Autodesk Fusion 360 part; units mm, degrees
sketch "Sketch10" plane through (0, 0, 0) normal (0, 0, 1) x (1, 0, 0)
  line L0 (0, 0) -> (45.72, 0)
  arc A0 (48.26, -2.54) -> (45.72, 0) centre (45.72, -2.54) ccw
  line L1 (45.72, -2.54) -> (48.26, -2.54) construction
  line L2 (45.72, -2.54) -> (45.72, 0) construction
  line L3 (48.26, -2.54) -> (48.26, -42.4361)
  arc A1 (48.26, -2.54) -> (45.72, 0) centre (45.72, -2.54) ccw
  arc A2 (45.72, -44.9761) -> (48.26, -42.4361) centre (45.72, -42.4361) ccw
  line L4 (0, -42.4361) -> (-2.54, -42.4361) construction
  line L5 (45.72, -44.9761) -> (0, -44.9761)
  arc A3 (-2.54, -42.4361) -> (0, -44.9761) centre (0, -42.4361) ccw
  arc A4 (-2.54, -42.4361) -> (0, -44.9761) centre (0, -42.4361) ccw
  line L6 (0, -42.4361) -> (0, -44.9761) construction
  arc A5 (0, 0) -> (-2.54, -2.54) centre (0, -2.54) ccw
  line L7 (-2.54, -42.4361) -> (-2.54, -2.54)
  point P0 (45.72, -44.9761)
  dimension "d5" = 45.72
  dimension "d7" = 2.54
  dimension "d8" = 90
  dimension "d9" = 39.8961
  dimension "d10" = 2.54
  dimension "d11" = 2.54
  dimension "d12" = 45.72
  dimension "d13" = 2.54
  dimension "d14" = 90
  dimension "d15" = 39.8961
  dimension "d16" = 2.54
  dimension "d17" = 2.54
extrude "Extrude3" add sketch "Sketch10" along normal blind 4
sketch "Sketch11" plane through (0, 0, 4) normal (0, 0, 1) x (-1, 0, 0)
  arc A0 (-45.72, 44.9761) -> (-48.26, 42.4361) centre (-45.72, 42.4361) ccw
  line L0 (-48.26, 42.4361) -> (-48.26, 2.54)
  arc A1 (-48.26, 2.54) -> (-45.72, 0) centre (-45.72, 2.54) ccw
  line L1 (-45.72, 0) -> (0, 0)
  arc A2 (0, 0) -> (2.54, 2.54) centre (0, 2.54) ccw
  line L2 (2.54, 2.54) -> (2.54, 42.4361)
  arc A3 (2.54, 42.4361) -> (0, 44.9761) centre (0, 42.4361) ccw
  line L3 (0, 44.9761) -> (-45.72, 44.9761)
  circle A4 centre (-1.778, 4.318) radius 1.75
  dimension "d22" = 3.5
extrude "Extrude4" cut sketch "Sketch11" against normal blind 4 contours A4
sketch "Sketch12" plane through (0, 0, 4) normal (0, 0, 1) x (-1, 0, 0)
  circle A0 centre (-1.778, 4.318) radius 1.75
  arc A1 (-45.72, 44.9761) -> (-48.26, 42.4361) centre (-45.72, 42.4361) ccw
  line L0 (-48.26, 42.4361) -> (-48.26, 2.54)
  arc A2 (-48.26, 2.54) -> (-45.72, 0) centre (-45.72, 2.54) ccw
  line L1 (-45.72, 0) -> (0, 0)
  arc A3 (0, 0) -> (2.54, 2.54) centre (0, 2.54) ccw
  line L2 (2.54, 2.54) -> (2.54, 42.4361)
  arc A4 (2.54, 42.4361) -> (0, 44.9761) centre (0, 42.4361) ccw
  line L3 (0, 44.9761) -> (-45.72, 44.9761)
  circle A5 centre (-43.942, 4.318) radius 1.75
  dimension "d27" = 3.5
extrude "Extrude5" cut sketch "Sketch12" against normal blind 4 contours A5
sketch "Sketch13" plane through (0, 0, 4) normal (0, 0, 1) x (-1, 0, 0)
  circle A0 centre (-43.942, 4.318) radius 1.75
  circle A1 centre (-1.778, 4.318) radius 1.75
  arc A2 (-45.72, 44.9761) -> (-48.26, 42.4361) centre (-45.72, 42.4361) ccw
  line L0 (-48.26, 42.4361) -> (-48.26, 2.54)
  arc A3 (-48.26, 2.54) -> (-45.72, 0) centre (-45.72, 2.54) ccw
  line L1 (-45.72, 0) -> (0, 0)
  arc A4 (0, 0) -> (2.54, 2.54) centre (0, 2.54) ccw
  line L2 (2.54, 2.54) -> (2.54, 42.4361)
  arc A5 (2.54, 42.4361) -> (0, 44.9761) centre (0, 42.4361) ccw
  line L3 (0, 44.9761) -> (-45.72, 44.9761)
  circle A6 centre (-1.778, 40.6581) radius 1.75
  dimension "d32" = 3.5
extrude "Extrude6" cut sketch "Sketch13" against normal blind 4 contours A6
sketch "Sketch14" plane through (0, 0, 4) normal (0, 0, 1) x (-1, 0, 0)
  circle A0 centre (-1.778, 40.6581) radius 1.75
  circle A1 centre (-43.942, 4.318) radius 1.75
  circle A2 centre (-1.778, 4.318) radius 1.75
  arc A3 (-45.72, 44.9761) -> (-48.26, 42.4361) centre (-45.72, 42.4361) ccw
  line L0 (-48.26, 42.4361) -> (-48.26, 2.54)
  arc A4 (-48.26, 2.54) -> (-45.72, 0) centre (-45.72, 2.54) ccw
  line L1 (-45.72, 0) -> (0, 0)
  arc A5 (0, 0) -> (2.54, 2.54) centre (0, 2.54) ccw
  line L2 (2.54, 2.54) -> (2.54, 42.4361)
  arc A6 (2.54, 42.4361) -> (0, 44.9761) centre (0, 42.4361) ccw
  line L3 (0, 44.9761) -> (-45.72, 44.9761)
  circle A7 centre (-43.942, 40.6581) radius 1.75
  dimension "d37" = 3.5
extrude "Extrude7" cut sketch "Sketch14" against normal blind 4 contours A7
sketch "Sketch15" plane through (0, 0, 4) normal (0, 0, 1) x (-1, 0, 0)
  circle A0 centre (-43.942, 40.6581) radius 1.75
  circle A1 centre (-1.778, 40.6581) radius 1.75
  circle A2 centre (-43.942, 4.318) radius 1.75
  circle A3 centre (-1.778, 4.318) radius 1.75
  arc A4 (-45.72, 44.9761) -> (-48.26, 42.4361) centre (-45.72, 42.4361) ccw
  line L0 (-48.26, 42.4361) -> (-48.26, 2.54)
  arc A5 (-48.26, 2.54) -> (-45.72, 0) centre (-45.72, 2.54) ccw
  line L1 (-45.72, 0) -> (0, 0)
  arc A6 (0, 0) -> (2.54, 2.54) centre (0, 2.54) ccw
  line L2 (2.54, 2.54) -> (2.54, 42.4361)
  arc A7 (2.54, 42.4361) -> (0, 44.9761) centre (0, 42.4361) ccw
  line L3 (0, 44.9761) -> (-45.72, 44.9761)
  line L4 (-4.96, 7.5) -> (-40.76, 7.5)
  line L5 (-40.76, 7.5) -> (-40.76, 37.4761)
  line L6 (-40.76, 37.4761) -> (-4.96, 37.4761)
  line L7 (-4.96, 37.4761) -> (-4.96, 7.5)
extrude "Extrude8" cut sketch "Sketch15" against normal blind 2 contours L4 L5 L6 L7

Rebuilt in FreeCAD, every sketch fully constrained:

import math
import FreeCAD as App
import Part
import Sketcher
Q = App.Units.Quantity

doc = App.newDocument("Part")
body = doc.addObject("PartDesign::Body", "Body")

# Sketch on XY plane
sketch1 = body.newObject("Sketcher::SketchObject", "Sketch")
sketch1.AttachmentSupport = (doc.getObject("XY_Plane"), [""])
sketch1.MapMode = "FlatFace"
sketch1.addGeometry(Part.LineSegment(App.Vector(45.7, 0, 0), App.Vector(0, 0, 0)), False)
sketch1.addGeometry(Part.ArcOfCircle(Part.Circle(App.Vector(0, -2.5, 0), App.Vector(0, 0, 1), 2.5), math.radians(90), math.radians(180)), False)
sketch1.addGeometry(Part.LineSegment(App.Vector(-2.5, -2.5, 0), App.Vector(-2.5, -42.4, 0)), False)
sketch1.addGeometry(Part.ArcOfCircle(Part.Circle(App.Vector(0, -42.4, 0), App.Vector(0, 0, 1), 2.5), math.radians(180), math.radians(270)), False)
sketch1.addGeometry(Part.LineSegment(App.Vector(0, -45, 0), App.Vector(45.7, -45, 0)), False)
sketch1.addGeometry(Part.ArcOfCircle(Part.Circle(App.Vector(45.7, -42.4, 0), App.Vector(0, 0, 1), 2.5), math.radians(-90), math.radians(0)), False)
sketch1.addGeometry(Part.LineSegment(App.Vector(48.3, -42.4, 0), App.Vector(48.3, -2.5, 0)), False)
sketch1.addGeometry(Part.ArcOfCircle(Part.Circle(App.Vector(45.7, -2.5, 0), App.Vector(0, 0, 1), 2.5), math.radians(0), math.radians(90)), False)
sketch1.addConstraint(Sketcher.Constraint("Tangent", 0, 2, 1, 1))
sketch1.addConstraint(Sketcher.Constraint("Tangent", 1, 2, 2, 1))
sketch1.addConstraint(Sketcher.Constraint("Tangent", 2, 2, 3, 1))
sketch1.addConstraint(Sketcher.Constraint("Tangent", 3, 2, 4, 1))
sketch1.addConstraint(Sketcher.Constraint("Tangent", 4, 2, 5, 1))
sketch1.addConstraint(Sketcher.Constraint("Tangent", 5, 2, 6, 1))
sketch1.addConstraint(Sketcher.Constraint("Tangent", 6, 2, 7, 1))
sketch1.addConstraint(Sketcher.Constraint("Tangent", 7, 2, 0, 1))
sketch1.addConstraint(Sketcher.Constraint("Horizontal", 0))
sketch1.addConstraint(Sketcher.Constraint("Vertical", 2))
sketch1.addConstraint(Sketcher.Constraint("Horizontal", 4))
sketch1.addConstraint(Sketcher.Constraint("Vertical", 6))
sketch1.addConstraint(Sketcher.Constraint("Coincident", 0, 2, -1, 1))
sketch1.addConstraint(Sketcher.Constraint("Equal", 1, 3))
sketch1.addConstraint(Sketcher.Constraint("Equal", 3, 5))
sketch1.addConstraint(Sketcher.Constraint("Equal", 5, 7))
sketch1.addConstraint(Sketcher.Constraint("Radius", 1, Q("2.54 mm")))
sketch1.addConstraint(Sketcher.Constraint("DistanceX", 0, 2, 0, 1, Q("45.72 mm")))
sketch1.addConstraint(Sketcher.Constraint("DistanceY", 2, 2, 2, 1, Q("39.896 mm")))
pad1 = body.newObject("PartDesign::Pad", "Pad")
pad1.Profile = sketch1
pad1.Length = 4

# Sketch on XY plane
sketch2 = body.newObject("Sketcher::SketchObject", "Sketch001")
sketch2.AttachmentSupport = (doc.getObject("XY_Plane"), [""])
sketch2.MapMode = "FlatFace"
sketch2.AttachmentOffset = App.Placement(App.Vector(0, 0, 4), App.Rotation())
sketch2.addGeometry(Part.Circle(App.Vector(1.8, -4.3, 0), App.Vector(0, 0, 1), 1.8), False)
sketch2.addConstraint(Sketcher.Constraint("Diameter", 0, Q("3.5 mm")))
sketch2.addConstraint(Sketcher.Constraint("DistanceX", -1, 1, 0, 3, Q("1.778 mm")))
sketch2.addConstraint(Sketcher.Constraint("DistanceY", 0, 3, -1, 1, Q("4.318 mm")))
pocket1 = body.newObject("PartDesign::Pocket", "Pocket")
pocket1.Profile = sketch2
pocket1.Length = 4

# Sketch on XY plane
sketch3 = body.newObject("Sketcher::SketchObject", "Sketch002")
sketch3.AttachmentSupport = (doc.getObject("XY_Plane"), [""])
sketch3.MapMode = "FlatFace"
sketch3.AttachmentOffset = App.Placement(App.Vector(0, 0, 4), App.Rotation())
sketch3.addGeometry(Part.Circle(App.Vector(43.9, -4.3, 0), App.Vector(0, 0, 1), 1.8), False)
sketch3.addConstraint(Sketcher.Constraint("Diameter", 0, Q("3.5 mm")))
sketch3.addConstraint(Sketcher.Constraint("DistanceX", -1, 1, 0, 3, Q("43.942 mm")))
sketch3.addConstraint(Sketcher.Constraint("DistanceY", 0, 3, -1, 1, Q("4.318 mm")))
pocket2 = body.newObject("PartDesign::Pocket", "Pocket001")
pocket2.Profile = sketch3
pocket2.Length = 4

# Sketch on XY plane
sketch4 = body.newObject("Sketcher::SketchObject", "Sketch003")
sketch4.AttachmentSupport = (doc.getObject("XY_Plane"), [""])
sketch4.MapMode = "FlatFace"
sketch4.AttachmentOffset = App.Placement(App.Vector(0, 0, 4), App.Rotation())
sketch4.addGeometry(Part.Circle(App.Vector(1.8, -40.7, 0), App.Vector(0, 0, 1), 1.8), False)
sketch4.addConstraint(Sketcher.Constraint("Diameter", 0, Q("3.5 mm")))
sketch4.addConstraint(Sketcher.Constraint("DistanceX", -1, 1, 0, 3, Q("1.778 mm")))
sketch4.addConstraint(Sketcher.Constraint("DistanceY", 0, 3, -1, 1, Q("40.658 mm")))
pocket3 = body.newObject("PartDesign::Pocket", "Pocket002")
pocket3.Profile = sketch4
pocket3.Length = 4

# Sketch on XY plane
sketch5 = body.newObject("Sketcher::SketchObject", "Sketch004")
sketch5.AttachmentSupport = (doc.getObject("XY_Plane"), [""])
sketch5.MapMode = "FlatFace"
sketch5.AttachmentOffset = App.Placement(App.Vector(0, 0, 4), App.Rotation())
sketch5.addGeometry(Part.Circle(App.Vector(43.9, -40.7, 0), App.Vector(0, 0, 1), 1.8), False)
sketch5.addConstraint(Sketcher.Constraint("Diameter", 0, Q("3.5 mm")))
sketch5.addConstraint(Sketcher.Constraint("DistanceX", -1, 1, 0, 3, Q("43.942 mm")))
sketch5.addConstraint(Sketcher.Constraint("DistanceY", 0, 3, -1, 1, Q("40.658 mm")))
pocket4 = body.newObject("PartDesign::Pocket", "Pocket003")
pocket4.Profile = sketch5
pocket4.Length = 4

# Sketch on XY plane
sketch6 = body.newObject("Sketcher::SketchObject", "Sketch005")
sketch6.AttachmentSupport = (doc.getObject("XY_Plane"), [""])
sketch6.MapMode = "FlatFace"
sketch6.AttachmentOffset = App.Placement(App.Vector(0, 0, 4), App.Rotation())
sketch6.addGeometry(Part.LineSegment(App.Vector(41, -8, 0), App.Vector(5, -8, 0)), False)
sketch6.addGeometry(Part.LineSegment(App.Vector(5, -8, 0), App.Vector(5, -37, 0)), False)
sketch6.addGeometry(Part.LineSegment(App.Vector(5, -37, 0), App.Vector(41, -37, 0)), False)
sketch6.addGeometry(Part.LineSegment(App.Vector(41, -37, 0), App.Vector(41, -8, 0)), False)
sketch6.addConstraint(Sketcher.Constraint("Coincident", 0, 2, 1, 1))
sketch6.addConstraint(Sketcher.Constraint("Coincident", 1, 2, 2, 1))
sketch6.addConstraint(Sketcher.Constraint("Coincident", 2, 2, 3, 1))
sketch6.addConstraint(Sketcher.Constraint("Coincident", 3, 2, 0, 1))
sketch6.addConstraint(Sketcher.Constraint("Horizontal", 0))
sketch6.addConstraint(Sketcher.Constraint("Vertical", 1))
sketch6.addConstraint(Sketcher.Constraint("Horizontal", 2))
sketch6.addConstraint(Sketcher.Constraint("Vertical", 3))
sketch6.addConstraint(Sketcher.Constraint("DistanceX", 0, 2, 0, 1, Q("35.8 mm")))
sketch6.addConstraint(Sketcher.Constraint("DistanceY", 0, 2, -1, 1, Q("7.5 mm")))
sketch6.addConstraint(Sketcher.Constraint("DistanceY", 1, 2, 1, 1, Q("29.976 mm")))
sketch6.addConstraint(Sketcher.Constraint("DistanceX", -1, 1, 0, 2, Q("4.96 mm")))
pocket5 = body.newObject("PartDesign::Pocket", "Pocket004")
pocket5.Profile = sketch6
pocket5.Length = 2

doc.recompute()
